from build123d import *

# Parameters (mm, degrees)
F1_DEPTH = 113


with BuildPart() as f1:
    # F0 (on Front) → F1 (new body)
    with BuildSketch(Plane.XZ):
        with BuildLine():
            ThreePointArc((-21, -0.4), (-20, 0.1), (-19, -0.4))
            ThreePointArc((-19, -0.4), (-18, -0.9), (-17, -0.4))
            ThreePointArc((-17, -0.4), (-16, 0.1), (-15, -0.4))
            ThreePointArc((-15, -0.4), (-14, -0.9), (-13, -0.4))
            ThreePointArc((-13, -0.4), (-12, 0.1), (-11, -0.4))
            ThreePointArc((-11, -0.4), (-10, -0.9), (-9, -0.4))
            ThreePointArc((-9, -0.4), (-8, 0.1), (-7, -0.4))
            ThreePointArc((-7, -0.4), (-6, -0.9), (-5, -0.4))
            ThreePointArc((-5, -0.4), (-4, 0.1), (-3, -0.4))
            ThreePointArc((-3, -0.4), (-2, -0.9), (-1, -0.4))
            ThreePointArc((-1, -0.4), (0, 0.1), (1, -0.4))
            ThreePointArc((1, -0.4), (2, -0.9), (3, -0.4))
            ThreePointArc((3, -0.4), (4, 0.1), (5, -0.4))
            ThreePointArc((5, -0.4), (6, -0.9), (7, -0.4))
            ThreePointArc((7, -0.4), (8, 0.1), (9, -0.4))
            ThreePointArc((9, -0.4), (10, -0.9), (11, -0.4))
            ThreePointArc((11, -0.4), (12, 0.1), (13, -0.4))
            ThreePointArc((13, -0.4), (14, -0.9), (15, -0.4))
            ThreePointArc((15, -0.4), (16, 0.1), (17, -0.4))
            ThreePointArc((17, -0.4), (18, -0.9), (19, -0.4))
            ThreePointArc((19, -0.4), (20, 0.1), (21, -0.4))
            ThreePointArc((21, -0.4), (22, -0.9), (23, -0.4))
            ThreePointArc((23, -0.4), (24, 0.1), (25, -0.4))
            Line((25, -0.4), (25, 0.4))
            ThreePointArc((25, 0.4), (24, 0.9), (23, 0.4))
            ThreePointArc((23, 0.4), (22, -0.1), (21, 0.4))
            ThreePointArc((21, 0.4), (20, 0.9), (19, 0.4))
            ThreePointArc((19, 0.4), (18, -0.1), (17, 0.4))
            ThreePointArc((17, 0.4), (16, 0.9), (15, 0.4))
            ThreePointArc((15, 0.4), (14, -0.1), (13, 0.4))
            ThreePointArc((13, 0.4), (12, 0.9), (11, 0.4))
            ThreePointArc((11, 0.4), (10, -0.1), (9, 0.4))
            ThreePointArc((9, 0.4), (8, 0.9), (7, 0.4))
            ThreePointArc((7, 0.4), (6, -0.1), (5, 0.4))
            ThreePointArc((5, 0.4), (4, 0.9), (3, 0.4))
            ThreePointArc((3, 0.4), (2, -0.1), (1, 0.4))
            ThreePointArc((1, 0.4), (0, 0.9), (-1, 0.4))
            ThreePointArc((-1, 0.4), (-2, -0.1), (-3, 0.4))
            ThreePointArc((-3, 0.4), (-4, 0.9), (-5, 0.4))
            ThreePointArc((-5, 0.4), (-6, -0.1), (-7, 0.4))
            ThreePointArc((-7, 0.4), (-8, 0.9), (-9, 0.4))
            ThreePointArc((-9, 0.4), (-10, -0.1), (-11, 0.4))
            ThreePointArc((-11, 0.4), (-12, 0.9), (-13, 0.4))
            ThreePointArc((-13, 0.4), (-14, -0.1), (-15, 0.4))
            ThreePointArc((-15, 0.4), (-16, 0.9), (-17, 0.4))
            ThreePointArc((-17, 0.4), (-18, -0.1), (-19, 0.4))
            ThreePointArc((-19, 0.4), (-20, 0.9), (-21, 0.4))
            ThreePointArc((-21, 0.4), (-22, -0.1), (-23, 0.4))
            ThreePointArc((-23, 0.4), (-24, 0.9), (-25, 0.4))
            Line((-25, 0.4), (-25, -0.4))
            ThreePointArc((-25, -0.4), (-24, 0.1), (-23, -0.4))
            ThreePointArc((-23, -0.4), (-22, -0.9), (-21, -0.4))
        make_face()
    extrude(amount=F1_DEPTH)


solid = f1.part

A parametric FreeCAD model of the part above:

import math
import FreeCAD as App
import Part
import Sketcher

V = App.Vector

doc = App.newDocument("Part")
params = doc.addObject("Spreadsheet::Sheet", "Params")
for row, (alias, value) in enumerate([
    ("sketch1_radius", "1.25 mm"),
    ("sketch1_height", "0.8 mm"),
    ("pad1_length", "113 mm"),
], start=1):
    params.set(f"A{row}", alias)
    params.set(f"B{row}", "=" + value)
    params.setAlias(f"B{row}", alias)

body = doc.addObject("PartDesign::Body", "Body")

# Sketch on XZ plane
sketch1 = body.newObject("Sketcher::SketchObject", "Sketch")
sketch1.AttachmentSupport = (doc.getObject("XZ_Plane"), [""])
sketch1.MapMode = "FlatFace"
sketch1.addGeometry([
    Part.ArcOfCircle(Part.Circle(V(-20, -1.1, 0), V(0, 0, 1), 1.2), math.radians(37), math.radians(143)),  # 0
    Part.ArcOfCircle(Part.Circle(V(-18, 0.3, 0), V(0, 0, 1), 1.2), math.radians(-143), math.radians(-37)),  # 1
    Part.ArcOfCircle(Part.Circle(V(-16, -1.1, 0), V(0, 0, 1), 1.2), math.radians(37), math.radians(143)),  # 2
    Part.ArcOfCircle(Part.Circle(V(-14, 0.3, 0), V(0, 0, 1), 1.2), math.radians(-143), math.radians(-37)),  # 3
    Part.ArcOfCircle(Part.Circle(V(-12, -1.1, 0), V(0, 0, 1), 1.2), math.radians(37), math.radians(143)),  # 4
    Part.ArcOfCircle(Part.Circle(V(-10, 0.3, 0), V(0, 0, 1), 1.2), math.radians(-143), math.radians(-37)),  # 5
    Part.ArcOfCircle(Part.Circle(V(-8, -1.1, 0), V(0, 0, 1), 1.2), math.radians(37), math.radians(143)),  # 6
    Part.ArcOfCircle(Part.Circle(V(-6, 0.3, 0), V(0, 0, 1), 1.2), math.radians(-143), math.radians(-37)),  # 7
    Part.ArcOfCircle(Part.Circle(V(-4, -1.1, 0), V(0, 0, 1), 1.2), math.radians(37), math.radians(143)),  # 8
    Part.ArcOfCircle(Part.Circle(V(-2, 0.3, 0), V(0, 0, 1), 1.2), math.radians(-143), math.radians(-37)),  # 9
    Part.ArcOfCircle(Part.Circle(V(0, -1.1, 0), V(0, 0, 1), 1.2), math.radians(37), math.radians(143)),  # 10
    Part.ArcOfCircle(Part.Circle(V(2, 0.3, 0), V(0, 0, 1), 1.2), math.radians(-143), math.radians(-37)),  # 11
    Part.ArcOfCircle(Part.Circle(V(4, -1.1, 0), V(0, 0, 1), 1.2), math.radians(37), math.radians(143)),  # 12
    Part.ArcOfCircle(Part.Circle(V(6, 0.3, 0), V(0, 0, 1), 1.2), math.radians(-143), math.radians(-37)),  # 13
    Part.ArcOfCircle(Part.Circle(V(8, -1.1, 0), V(0, 0, 1), 1.2), math.radians(37), math.radians(143)),  # 14
    Part.ArcOfCircle(Part.Circle(V(10, 0.3, 0), V(0, 0, 1), 1.2), math.radians(-143), math.radians(-37)),  # 15
    Part.ArcOfCircle(Part.Circle(V(12, -1.1, 0), V(0, 0, 1), 1.2), math.radians(37), math.radians(143)),  # 16
    Part.ArcOfCircle(Part.Circle(V(14, 0.3, 0), V(0, 0, 1), 1.2), math.radians(-143), math.radians(-37)),  # 17
    Part.ArcOfCircle(Part.Circle(V(16, -1.1, 0), V(0, 0, 1), 1.2), math.radians(37), math.radians(143)),  # 18
    Part.ArcOfCircle(Part.Circle(V(18, 0.3, 0), V(0, 0, 1), 1.2), math.radians(-143), math.radians(-37)),  # 19
    Part.ArcOfCircle(Part.Circle(V(20, -1.1, 0), V(0, 0, 1), 1.2), math.radians(37), math.radians(143)),  # 20
    Part.ArcOfCircle(Part.Circle(V(22, 0.3, 0), V(0, 0, 1), 1.2), math.radians(-143), math.radians(-37)),  # 21
    Part.ArcOfCircle(Part.Circle(V(24, -1.1, 0), V(0, 0, 1), 1.2), math.radians(37), math.radians(143)),  # 22
    Part.LineSegment(V(25, -0.4, 0), V(25, 0.4, 0)),  # 23
    Part.ArcOfCircle(Part.Circle(V(24, -0.3, 0), V(0, 0, 1), 1.2), math.radians(37), math.radians(143)),  # 24
    Part.ArcOfCircle(Part.Circle(V(22, 1.1, 0), V(0, 0, 1), 1.2), math.radians(-143), math.radians(-37)),  # 25
    Part.ArcOfCircle(Part.Circle(V(20, -0.3, 0), V(0, 0, 1), 1.2), math.radians(37), math.radians(143)),  # 26
    Part.ArcOfCircle(Part.Circle(V(18, 1.1, 0), V(0, 0, 1), 1.2), math.radians(-143), math.radians(-37)),  # 27
    Part.ArcOfCircle(Part.Circle(V(16, -0.3, 0), V(0, 0, 1), 1.2), math.radians(37), math.radians(143)),  # 28
    Part.ArcOfCircle(Part.Circle(V(14, 1.1, 0), V(0, 0, 1), 1.2), math.radians(-143), math.radians(-37)),  # 29
    Part.ArcOfCircle(Part.Circle(V(12, -0.3, 0), V(0, 0, 1), 1.2), math.radians(37), math.radians(143)),  # 30
    Part.ArcOfCircle(Part.Circle(V(10, 1.1, 0), V(0, 0, 1), 1.2), math.radians(-143), math.radians(-37)),  # 31
    Part.ArcOfCircle(Part.Circle(V(8, -0.3, 0), V(0, 0, 1), 1.2), math.radians(37), math.radians(143)),  # 32
    Part.ArcOfCircle(Part.Circle(V(6, 1.1, 0), V(0, 0, 1), 1.2), math.radians(-143), math.radians(-37)),  # 33
    Part.ArcOfCircle(Part.Circle(V(4, -0.3, 0), V(0, 0, 1), 1.2), math.radians(37), math.radians(143)),  # 34
    Part.ArcOfCircle(Part.Circle(V(2, 1.1, 0), V(0, 0, 1), 1.2), math.radians(-143), math.radians(-37)),  # 35
    Part.ArcOfCircle(Part.Circle(V(0, -0.3, 0), V(0, 0, 1), 1.2), math.radians(37), math.radians(143)),  # 36
    Part.ArcOfCircle(Part.Circle(V(-2, 1.1, 0), V(0, 0, 1), 1.2), math.radians(-143), math.radians(-37)),  # 37
    Part.ArcOfCircle(Part.Circle(V(-4, -0.3, 0), V(0, 0, 1), 1.2), math.radians(37), math.radians(143)),  # 38
    Part.ArcOfCircle(Part.Circle(V(-6, 1.1, 0), V(0, 0, 1), 1.2), math.radians(-143), math.radians(-37)),  # 39
    Part.ArcOfCircle(Part.Circle(V(-8, -0.3, 0), V(0, 0, 1), 1.2), math.radians(37), math.radians(143)),  # 40
    Part.ArcOfCircle(Part.Circle(V(-10, 1.1, 0), V(0, 0, 1), 1.2), math.radians(-143), math.radians(-37)),  # 41
    Part.ArcOfCircle(Part.Circle(V(-12, -0.3, 0), V(0, 0, 1), 1.2), math.radians(37), math.radians(143)),  # 42
    Part.ArcOfCircle(Part.Circle(V(-14, 1.1, 0), V(0, 0, 1), 1.2), math.radians(-143), math.radians(-37)),  # 43
    Part.ArcOfCircle(Part.Circle(V(-16, -0.3, 0), V(0, 0, 1), 1.2), math.radians(37), math.radians(143)),  # 44
    Part.ArcOfCircle(Part.Circle(V(-18, 1.1, 0), V(0, 0, 1), 1.2), math.radians(-143), math.radians(-37)),  # 45
    Part.ArcOfCircle(Part.Circle(V(-20, -0.3, 0), V(0, 0, 1), 1.2), math.radians(37), math.radians(143)),  # 46
    Part.ArcOfCircle(Part.Circle(V(-22, 1.1, 0), V(0, 0, 1), 1.2), math.radians(-143), math.radians(-37)),  # 47
    Part.ArcOfCircle(Part.Circle(V(-24, -0.3, 0), V(0, 0, 1), 1.2), math.radians(37), math.radians(143)),  # 48
    Part.LineSegment(V(-25, 0.4, 0), V(-25, -0.4, 0)),  # 49
    Part.ArcOfCircle(Part.Circle(V(-24, -1.1, 0), V(0, 0, 1), 1.2), math.radians(37), math.radians(143)),  # 50
    Part.ArcOfCircle(Part.Circle(V(-22, 0.3, 0), V(0, 0, 1), 1.2), math.radians(-143), math.radians(-37)),  # 51
], False)
sketch1.addConstraint([
    Sketcher.Constraint("Tangent", 0, 1, 1, 1),
    Sketcher.Constraint("Tangent", 1, 2, 2, 2),
    Sketcher.Constraint("Tangent", 2, 1, 3, 1),
    Sketcher.Constraint("Tangent", 3, 2, 4, 2),
    Sketcher.Constraint("Tangent", 4, 1, 5, 1),
    Sketcher.Constraint("Tangent", 5, 2, 6, 2),
    Sketcher.Constraint("Tangent", 6, 1, 7, 1),
    Sketcher.Constraint("Tangent", 7, 2, 8, 2),
    Sketcher.Constraint("Tangent", 8, 1, 9, 1),
    Sketcher.Constraint("Tangent", 9, 2, 10, 2),
    Sketcher.Constraint("Tangent", 10, 1, 11, 1),
    Sketcher.Constraint("Tangent", 11, 2, 12, 2),
    Sketcher.Constraint("Tangent", 12, 1, 13, 1),
    Sketcher.Constraint("Tangent", 13, 2, 14, 2),
    Sketcher.Constraint("Tangent", 14, 1, 15, 1),
    Sketcher.Constraint("Tangent", 15, 2, 16, 2),
    Sketcher.Constraint("Tangent", 16, 1, 17, 1),
    Sketcher.Constraint("Tangent", 17, 2, 18, 2),
    Sketcher.Constraint("Tangent", 18, 1, 19, 1),
    Sketcher.Constraint("Tangent", 19, 2, 20, 2),
    Sketcher.Constraint("Tangent", 20, 1, 21, 1),
    Sketcher.Constraint("Tangent", 21, 2, 22, 2),
    Sketcher.Constraint("Coincident", 22, 1, 23, 1),
    Sketcher.Constraint("Coincident", 23, 2, 24, 1),
    Sketcher.Constraint("Tangent", 24, 2, 25, 2),
    Sketcher.Constraint("Tangent", 25, 1, 26, 1),
    Sketcher.Constraint("Tangent", 26, 2, 27, 2),
    Sketcher.Constraint("Tangent", 27, 1, 28, 1),
    Sketcher.Constraint("Tangent", 28, 2, 29, 2),
    Sketcher.Constraint("Tangent", 29, 1, 30, 1),
    Sketcher.Constraint("Tangent", 30, 2, 31, 2),
    Sketcher.Constraint("Tangent", 31, 1, 32, 1),
    Sketcher.Constraint("Tangent", 32, 2, 33, 2),
    Sketcher.Constraint("Tangent", 33, 1, 34, 1),
    Sketcher.Constraint("Tangent", 34, 2, 35, 2),
    Sketcher.Constraint("Tangent", 35, 1, 36, 1),
    Sketcher.Constraint("Tangent", 36, 2, 37, 2),
    Sketcher.Constraint("Tangent", 37, 1, 38, 1),
    Sketcher.Constraint("Tangent", 38, 2, 39, 2),
    Sketcher.Constraint("Tangent", 39, 1, 40, 1),
    Sketcher.Constraint("Tangent", 40, 2, 41, 2),
    Sketcher.Constraint("Tangent", 41, 1, 42, 1),
    Sketcher.Constraint("Tangent", 42, 2, 43, 2),
    Sketcher.Constraint("Tangent", 43, 1, 44, 1),
    Sketcher.Constraint("Tangent", 44, 2, 45, 2),
    Sketcher.Constraint("Tangent", 45, 1, 46, 1),
    Sketcher.Constraint("Tangent", 46, 2, 47, 2),
    Sketcher.Constraint("Tangent", 47, 1, 48, 1),
    Sketcher.Constraint("Coincident", 48, 2, 49, 1),
    Sketcher.Constraint("Coincident", 49, 2, 50, 2),
    Sketcher.Constraint("Tangent", 50, 1, 51, 1),
    Sketcher.Constraint("Tangent", 51, 2, 0, 2),
    Sketcher.Constraint("Vertical", 23),
    Sketcher.Constraint("Vertical", 49),
    Sketcher.Constraint("Equal", 0, 1),
    Sketcher.Constraint("Equal", 1, 2),
    Sketcher.Constraint("Equal", 2, 3),
    Sketcher.Constraint("Equal", 3, 4),
    Sketcher.Constraint("Equal", 4, 5),
    Sketcher.Constraint("Equal", 5, 6),
    Sketcher.Constraint("Equal", 6, 7),
    Sketcher.Constraint("Equal", 7, 8),
    Sketcher.Constraint("Equal", 8, 9),
    Sketcher.Constraint("Equal", 9, 10),
    Sketcher.Constraint("Equal", 10, 11),
    Sketcher.Constraint("Equal", 11, 12),
    Sketcher.Constraint("Equal", 12, 13),
    Sketcher.Constraint("Equal", 13, 14),
    Sketcher.Constraint("Equal", 14, 15),
    Sketcher.Constraint("Equal", 15, 16),
    Sketcher.Constraint("Equal", 16, 17),
    Sketcher.Constraint("Equal", 17, 18),
    Sketcher.Constraint("Equal", 18, 19),
    Sketcher.Constraint("Equal", 19, 20),
    Sketcher.Constraint("Equal", 20, 21),
    Sketcher.Constraint("Equal", 21, 22),
    Sketcher.Constraint("Equal", 22, 24),
    Sketcher.Constraint("Equal", 24, 25),
    Sketcher.Constraint("Equal", 25, 26),
    Sketcher.Constraint("Equal", 26, 27),
    Sketcher.Constraint("Equal", 27, 28),
    Sketcher.Constraint("Equal", 28, 29),
    Sketcher.Constraint("Equal", 29, 30),
    Sketcher.Constraint("Equal", 30, 31),
    Sketcher.Constraint("Equal", 31, 32),
    Sketcher.Constraint("Equal", 32, 33),
    Sketcher.Constraint("Equal", 33, 34),
    Sketcher.Constraint("Equal", 34, 35),
    Sketcher.Constraint("Equal", 35, 36),
    Sketcher.Constraint("Equal", 36, 37),
    Sketcher.Constraint("Equal", 37, 38),
    Sketcher.Constraint("Equal", 38, 39),
    Sketcher.Constraint("Equal", 39, 40),
    Sketcher.Constraint("Equal", 40, 41),
    Sketcher.Constraint("Equal", 41, 42),
    Sketcher.Constraint("Equal", 42, 43),
    Sketcher.Constraint("Equal", 43, 44),
    Sketcher.Constraint("Equal", 44, 45),
    Sketcher.Constraint("Equal", 45, 46),
    Sketcher.Constraint("Equal", 46, 47),
    Sketcher.Constraint("Equal", 47, 48),
    Sketcher.Constraint("Equal", 48, 50),
    Sketcher.Constraint("Equal", 50, 51),
    Sketcher.Constraint("Symmetric", 0, 1, 26, 2, -1, 1),
    Sketcher.Constraint("Symmetric", 1, 2, 27, 1, -1, 1),
    Sketcher.Constraint("Symmetric", 2, 1, 28, 2, -1, 1),
    Sketcher.Constraint("Symmetric", 3, 2, 29, 1, -1, 1),
    Sketcher.Constraint("Symmetric", 4, 1, 30, 2, -1, 1),
    Sketcher.Constraint("Symmetric", 5, 2, 31, 1, -1, 1),
    Sketcher.Constraint("Symmetric", 6, 1, 32, 2, -1, 1),
    Sketcher.Constraint("Symmetric", 7, 2, 33, 1, -1, 1),
    Sketcher.Constraint("Symmetric", 8, 1, 34, 2, -1, 1),
    Sketcher.Constraint("Symmetric", 9, 2, 35, 1, -1, 1),
    Sketcher.Constraint("Symmetric", 10, 1, 36, 2, -1, 1),
    Sketcher.Constraint("Symmetric", 11, 2, 37, 1, -1, 1),
    Sketcher.Constraint("Symmetric", 12, 1, 38, 2, -1, 1),
    Sketcher.Constraint("Symmetric", 13, 2, 39, 1, -1, 1),
    Sketcher.Constraint("Symmetric", 14, 1, 40, 2, -1, 1),
    Sketcher.Constraint("Symmetric", 15, 2, 41, 1, -1, 1),
    Sketcher.Constraint("Symmetric", 16, 1, 42, 2, -1, 1),
    Sketcher.Constraint("Symmetric", 17, 2, 43, 1, -1, 1),
    Sketcher.Constraint("Symmetric", 18, 1, 44, 2, -1, 1),
    Sketcher.Constraint("Symmetric", 19, 2, 45, 1, -1, 1),
    Sketcher.Constraint("Symmetric", 20, 1, 46, 2, -1, 1),
    Sketcher.Constraint("Symmetric", 21, 2, 47, 1, -1, 1),
    Sketcher.Constraint("Symmetric", 22, 1, 48, 2, -1, 1),
    Sketcher.Constraint("Symmetric", 24, 2, 50, 1, -1, 1),
    Sketcher.Constraint("Symmetric", 25, 1, 51, 2, -1, 1),
    Sketcher.Constraint("Symmetric", 9, 3, 11, 3, -2),
    Sketcher.Constraint("Radius", 0, 1.25),
    Sketcher.Constraint("DistanceY", 23, 1, 23, 2, 0.8),
    Sketcher.Constraint("DistanceX", 0, 3, -1, 1, 20.0),
])
sketch1.setExpression("Constraints[129]", "Params.sketch1_radius")
sketch1.setExpression("Constraints[130]", "Params.sketch1_height")
pad1 = body.newObject("PartDesign::Pad", "Pad")
pad1.Profile = sketch1
pad1.setExpression("Length", "Params.pad1_length")

doc.recompute()
